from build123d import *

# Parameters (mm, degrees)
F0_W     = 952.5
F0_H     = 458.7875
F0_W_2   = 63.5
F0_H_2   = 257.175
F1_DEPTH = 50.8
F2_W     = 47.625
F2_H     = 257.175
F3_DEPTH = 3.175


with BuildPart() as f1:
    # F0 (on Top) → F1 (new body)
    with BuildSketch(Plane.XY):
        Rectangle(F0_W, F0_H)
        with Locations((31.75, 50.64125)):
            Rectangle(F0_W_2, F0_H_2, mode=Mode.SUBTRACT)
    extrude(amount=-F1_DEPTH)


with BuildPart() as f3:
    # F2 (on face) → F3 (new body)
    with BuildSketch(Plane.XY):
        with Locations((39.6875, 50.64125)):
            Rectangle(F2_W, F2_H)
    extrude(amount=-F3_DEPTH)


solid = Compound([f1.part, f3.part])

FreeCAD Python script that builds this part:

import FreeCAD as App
import Part
import Sketcher
Q = App.Units.Quantity

doc = App.newDocument("Part")
body = doc.addObject("PartDesign::Body", "Body")

# Sketch on XY plane
sketch1 = doc.addObject("Sketcher::SketchObject", "Sketch")
body.addObject(sketch1)
sketch1.AttachmentSupport = (doc.XY_Plane, [""])
sketch1.MapMode = "FlatFace"
sketch1.addGeometry([
    Part.LineSegment(App.Vector(-476, 229, 0), App.Vector(-476, -229, 0)),  # 0
    Part.LineSegment(App.Vector(-476, -229, 0), App.Vector(476, -229, 0)),  # 1
    Part.LineSegment(App.Vector(476, -229, 0), App.Vector(476, 229, 0)),  # 2
    Part.LineSegment(App.Vector(476, 229, 0), App.Vector(-476, 229, 0)),  # 3
    Part.LineSegment(App.Vector(64, -78, 0), App.Vector(0, -78, 0)),  # 4
    Part.LineSegment(App.Vector(0, -78, 0), App.Vector(0, 179, 0)),  # 5
    Part.LineSegment(App.Vector(0, 179, 0), App.Vector(64, 179, 0)),  # 6
    Part.LineSegment(App.Vector(64, 179, 0), App.Vector(64, -78, 0)),  # 7
], False)
sketch1.addConstraint([
    Sketcher.Constraint("Coincident", 0, 2, 1, 1),
    Sketcher.Constraint("Coincident", 1, 2, 2, 1),
    Sketcher.Constraint("Coincident", 2, 2, 3, 1),
    Sketcher.Constraint("Coincident", 3, 2, 0, 1),
    Sketcher.Constraint("Coincident", 4, 2, 5, 1),
    Sketcher.Constraint("Coincident", 5, 2, 6, 1),
    Sketcher.Constraint("Coincident", 6, 2, 7, 1),
    Sketcher.Constraint("Coincident", 7, 2, 4, 1),
    Sketcher.Constraint("Vertical", 0),
    Sketcher.Constraint("Horizontal", 1),
    Sketcher.Constraint("Vertical", 2),
    Sketcher.Constraint("Horizontal", 3),
    Sketcher.Constraint("Horizontal", 4),
    Sketcher.Constraint("Vertical", 5),
    Sketcher.Constraint("Horizontal", 6),
    Sketcher.Constraint("Vertical", 7),
    Sketcher.Constraint("Symmetric", 0, 2, 2, 2, -1, 1),
    Sketcher.Constraint("PointOnObject", 4, 2, -2),
    Sketcher.Constraint("DistanceX", 1, 1, 1, 2, Q("37.5 in")),
    Sketcher.Constraint("DistanceX", 4, 2, 4, 1, Q("2.5 in")),
    Sketcher.Constraint("DistanceY", 4, 2, 2, 2, Q("12.1 in")),
    Sketcher.Constraint("DistanceY", 0, 2, 0, 1, Q("18.0625 in")),
    Sketcher.Constraint("DistanceY", 5, 1, 5, 2, Q("10.125 in")),
])
pad1 = doc.addObject("PartDesign::Pad", "Pad")
body.addObject(pad1)
pad1.Profile = sketch1
pad1.Length = Q("2 in")
pad1.Reversed = True
body2 = doc.addObject("PartDesign::Body", "Body001")

# Sketch on XY plane
sketch2 = doc.addObject("Sketcher::SketchObject", "Sketch001")
body2.addObject(sketch2)
sketch2.AttachmentSupport = (doc.getObject("XY_Plane001"), [""])
sketch2.MapMode = "FlatFace"
sketch2.addGeometry([
    Part.LineSegment(App.Vector(16, 179, 0), App.Vector(16, -78, 0)),
    Part.LineSegment(App.Vector(16, -78, 0), App.Vector(64, -78, 0)),
    Part.LineSegment(App.Vector(64, -78, 0), App.Vector(64, 179, 0)),
    Part.LineSegment(App.Vector(64, 179, 0), App.Vector(16, 179, 0)),
], False)
sketch2.addConstraint([
    Sketcher.Constraint("Coincident", 0, 2, 1, 1),
    Sketcher.Constraint("Coincident", 1, 2, 2, 1),
    Sketcher.Constraint("Coincident", 2, 2, 3, 1),
    Sketcher.Constraint("Coincident", 3, 2, 0, 1),
    Sketcher.Constraint("Vertical", 0),
    Sketcher.Constraint("Horizontal", 1),
    Sketcher.Constraint("Vertical", 2),
    Sketcher.Constraint("Horizontal", 3),
    Sketcher.Constraint("DistanceX", -1, 1, 1, 2, Q("2.5 in")),
    Sketcher.Constraint("DistanceX", 1, 1, 1, 2, Q("1.875 in")),
    Sketcher.Constraint("DistanceY", 0, 2, 0, 1, Q("10.125 in")),
    Sketcher.Constraint("DistanceY", 0, 2, -1, 1, Q("77.94625 mm")),
])
pad2 = doc.addObject("PartDesign::Pad", "Pad001")
body2.addObject(pad2)
pad2.Profile = sketch2
pad2.Length = Q("0.125 in")
pad2.Reversed = True

doc.recompute()
